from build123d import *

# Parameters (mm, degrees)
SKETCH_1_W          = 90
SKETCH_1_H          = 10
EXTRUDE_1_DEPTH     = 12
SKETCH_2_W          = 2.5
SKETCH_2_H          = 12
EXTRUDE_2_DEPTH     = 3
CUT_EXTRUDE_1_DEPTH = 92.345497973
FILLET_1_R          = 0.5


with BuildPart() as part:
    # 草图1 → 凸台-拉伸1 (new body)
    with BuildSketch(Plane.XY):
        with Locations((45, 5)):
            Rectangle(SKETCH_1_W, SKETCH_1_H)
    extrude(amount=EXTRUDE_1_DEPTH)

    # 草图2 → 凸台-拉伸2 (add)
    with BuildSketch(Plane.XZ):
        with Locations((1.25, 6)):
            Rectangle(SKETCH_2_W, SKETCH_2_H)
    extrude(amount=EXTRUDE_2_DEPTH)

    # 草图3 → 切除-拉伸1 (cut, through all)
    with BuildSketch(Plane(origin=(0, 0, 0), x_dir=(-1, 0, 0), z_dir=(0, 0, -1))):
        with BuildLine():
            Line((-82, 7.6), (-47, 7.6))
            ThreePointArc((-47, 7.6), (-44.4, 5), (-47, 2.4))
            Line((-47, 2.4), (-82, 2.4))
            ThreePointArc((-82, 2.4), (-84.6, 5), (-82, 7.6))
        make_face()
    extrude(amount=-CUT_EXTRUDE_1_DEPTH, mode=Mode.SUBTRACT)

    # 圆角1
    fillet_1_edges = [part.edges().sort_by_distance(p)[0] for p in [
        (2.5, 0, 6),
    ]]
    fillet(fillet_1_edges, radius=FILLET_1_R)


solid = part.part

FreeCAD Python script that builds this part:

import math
import FreeCAD as App
import Part
import Sketcher


def edges_at(feature, points):
    """Names of the edges that pass closest to the given points."""
    edges = feature.Shape.Edges
    near = lambda p: min(range(len(edges)), key=lambda i: edges[i].distToShape(Part.Vertex(*p))[0])
    return sorted({f"Edge{near(p) + 1}" for p in points})


def add_polygon(sketch, points):
    """Adds a closed chain of lines whose ends are joined by coincident constraints."""
    first, n = sketch.GeometryCount, len(points)
    for a, b in zip(points, points[1:] + points[:1]):
        sketch.addGeometry(Part.LineSegment(App.Vector(*a, 0), App.Vector(*b, 0)), False)
    for i in range(n):
        sketch.addConstraint(Sketcher.Constraint("Coincident", first + i, 2, first + (i + 1) % n, 1))

doc = App.newDocument("Part")
body = doc.addObject("PartDesign::Body", "Body")

sketch1 = body.newObject("Sketcher::SketchObject", "Sketch")
sketch1.AttachmentSupport = (doc.getObject("XY_Plane"), [""])
sketch1.MapMode = "FlatFace"
add_polygon(sketch1, [(0, 10), (0, 0), (90, 0), (90, 10)])
sketch1.addConstraint([
    Sketcher.Constraint("Vertical", 0),
    Sketcher.Constraint("Horizontal", 1),
    Sketcher.Constraint("Vertical", 2),
    Sketcher.Constraint("Horizontal", 3),
    Sketcher.Constraint("Coincident", 0, 2, -1, 1),
    Sketcher.Constraint("DistanceX", 1, 1, 1, 2, 90.0),
    Sketcher.Constraint("DistanceY", 0, 2, 0, 1, 10.0),
])
pad1 = body.newObject("PartDesign::Pad", "Pad")
pad1.Profile = sketch1
pad1.Length = 12

sketch2 = body.newObject("Sketcher::SketchObject", "Sketch001")
sketch2.AttachmentSupport = (doc.getObject("XZ_Plane"), [""])
sketch2.MapMode = "FlatFace"
add_polygon(sketch2, [(0, 12), (0, 0), (2.5, 0), (2.5, 12)])
sketch2.addConstraint([
    Sketcher.Constraint("Vertical", 0),
    Sketcher.Constraint("Horizontal", 1),
    Sketcher.Constraint("Vertical", 2),
    Sketcher.Constraint("Horizontal", 3),
    Sketcher.Constraint("Coincident", 0, 2, -1, 1),
    Sketcher.Constraint("DistanceY", 0, 2, 0, 1, 12.0),
    Sketcher.Constraint("DistanceX", 1, 1, 1, 2, 2.5),
])
pad2 = body.newObject("PartDesign::Pad", "Pad001")
pad2.Profile = sketch2
pad2.Length = 3

sketch3 = body.newObject("Sketcher::SketchObject", "Sketch002")
sketch3.AttachmentSupport = (doc.getObject("XY_Plane"), [""])
sketch3.MapMode = "FlatFace"
sketch3.addGeometry([
    Part.LineSegment(App.Vector(47, 7.6, 0), App.Vector(82, 7.6, 0)),
    Part.ArcOfCircle(Part.Circle(App.Vector(82, 5, 0), App.Vector(0, 0, 1), 2.6), math.radians(-90), math.radians(90)),
    Part.LineSegment(App.Vector(82, 2.4, 0), App.Vector(47, 2.4, 0)),
    Part.ArcOfCircle(Part.Circle(App.Vector(47, 5, 0), App.Vector(0, 0, 1), 2.6), math.radians(90), math.radians(270)),
], False)
sketch3.addConstraint([
    Sketcher.Constraint("Tangent", 0, 2, 1, 2),
    Sketcher.Constraint("Tangent", 1, 1, 2, 1),
    Sketcher.Constraint("Tangent", 2, 2, 3, 2),
    Sketcher.Constraint("Tangent", 3, 1, 0, 1),
    Sketcher.Constraint("Horizontal", 0),
    Sketcher.Constraint("Horizontal", 2),
    Sketcher.Constraint("Radius", 1, 2.6),
    Sketcher.Constraint("DistanceX", 0, 1, 0, 2, 35.0),
    Sketcher.Constraint("DistanceX", -1, 1, 1, 3, 82.0),
    Sketcher.Constraint("DistanceY", -1, 1, 1, 3, 5.0),
])
pocket1 = body.newObject("PartDesign::Pocket", "Pocket")
pocket1.Profile = sketch3
pocket1.Type = "ThroughAll"
pocket1.Reversed = True
doc.recompute()

fillet = body.newObject("PartDesign::Fillet", "Fillet")
fillet.Base = (pocket1, edges_at(pocket1, [(2.5, 0, 6)]))
fillet.Radius = 0.5

doc.recompute()
